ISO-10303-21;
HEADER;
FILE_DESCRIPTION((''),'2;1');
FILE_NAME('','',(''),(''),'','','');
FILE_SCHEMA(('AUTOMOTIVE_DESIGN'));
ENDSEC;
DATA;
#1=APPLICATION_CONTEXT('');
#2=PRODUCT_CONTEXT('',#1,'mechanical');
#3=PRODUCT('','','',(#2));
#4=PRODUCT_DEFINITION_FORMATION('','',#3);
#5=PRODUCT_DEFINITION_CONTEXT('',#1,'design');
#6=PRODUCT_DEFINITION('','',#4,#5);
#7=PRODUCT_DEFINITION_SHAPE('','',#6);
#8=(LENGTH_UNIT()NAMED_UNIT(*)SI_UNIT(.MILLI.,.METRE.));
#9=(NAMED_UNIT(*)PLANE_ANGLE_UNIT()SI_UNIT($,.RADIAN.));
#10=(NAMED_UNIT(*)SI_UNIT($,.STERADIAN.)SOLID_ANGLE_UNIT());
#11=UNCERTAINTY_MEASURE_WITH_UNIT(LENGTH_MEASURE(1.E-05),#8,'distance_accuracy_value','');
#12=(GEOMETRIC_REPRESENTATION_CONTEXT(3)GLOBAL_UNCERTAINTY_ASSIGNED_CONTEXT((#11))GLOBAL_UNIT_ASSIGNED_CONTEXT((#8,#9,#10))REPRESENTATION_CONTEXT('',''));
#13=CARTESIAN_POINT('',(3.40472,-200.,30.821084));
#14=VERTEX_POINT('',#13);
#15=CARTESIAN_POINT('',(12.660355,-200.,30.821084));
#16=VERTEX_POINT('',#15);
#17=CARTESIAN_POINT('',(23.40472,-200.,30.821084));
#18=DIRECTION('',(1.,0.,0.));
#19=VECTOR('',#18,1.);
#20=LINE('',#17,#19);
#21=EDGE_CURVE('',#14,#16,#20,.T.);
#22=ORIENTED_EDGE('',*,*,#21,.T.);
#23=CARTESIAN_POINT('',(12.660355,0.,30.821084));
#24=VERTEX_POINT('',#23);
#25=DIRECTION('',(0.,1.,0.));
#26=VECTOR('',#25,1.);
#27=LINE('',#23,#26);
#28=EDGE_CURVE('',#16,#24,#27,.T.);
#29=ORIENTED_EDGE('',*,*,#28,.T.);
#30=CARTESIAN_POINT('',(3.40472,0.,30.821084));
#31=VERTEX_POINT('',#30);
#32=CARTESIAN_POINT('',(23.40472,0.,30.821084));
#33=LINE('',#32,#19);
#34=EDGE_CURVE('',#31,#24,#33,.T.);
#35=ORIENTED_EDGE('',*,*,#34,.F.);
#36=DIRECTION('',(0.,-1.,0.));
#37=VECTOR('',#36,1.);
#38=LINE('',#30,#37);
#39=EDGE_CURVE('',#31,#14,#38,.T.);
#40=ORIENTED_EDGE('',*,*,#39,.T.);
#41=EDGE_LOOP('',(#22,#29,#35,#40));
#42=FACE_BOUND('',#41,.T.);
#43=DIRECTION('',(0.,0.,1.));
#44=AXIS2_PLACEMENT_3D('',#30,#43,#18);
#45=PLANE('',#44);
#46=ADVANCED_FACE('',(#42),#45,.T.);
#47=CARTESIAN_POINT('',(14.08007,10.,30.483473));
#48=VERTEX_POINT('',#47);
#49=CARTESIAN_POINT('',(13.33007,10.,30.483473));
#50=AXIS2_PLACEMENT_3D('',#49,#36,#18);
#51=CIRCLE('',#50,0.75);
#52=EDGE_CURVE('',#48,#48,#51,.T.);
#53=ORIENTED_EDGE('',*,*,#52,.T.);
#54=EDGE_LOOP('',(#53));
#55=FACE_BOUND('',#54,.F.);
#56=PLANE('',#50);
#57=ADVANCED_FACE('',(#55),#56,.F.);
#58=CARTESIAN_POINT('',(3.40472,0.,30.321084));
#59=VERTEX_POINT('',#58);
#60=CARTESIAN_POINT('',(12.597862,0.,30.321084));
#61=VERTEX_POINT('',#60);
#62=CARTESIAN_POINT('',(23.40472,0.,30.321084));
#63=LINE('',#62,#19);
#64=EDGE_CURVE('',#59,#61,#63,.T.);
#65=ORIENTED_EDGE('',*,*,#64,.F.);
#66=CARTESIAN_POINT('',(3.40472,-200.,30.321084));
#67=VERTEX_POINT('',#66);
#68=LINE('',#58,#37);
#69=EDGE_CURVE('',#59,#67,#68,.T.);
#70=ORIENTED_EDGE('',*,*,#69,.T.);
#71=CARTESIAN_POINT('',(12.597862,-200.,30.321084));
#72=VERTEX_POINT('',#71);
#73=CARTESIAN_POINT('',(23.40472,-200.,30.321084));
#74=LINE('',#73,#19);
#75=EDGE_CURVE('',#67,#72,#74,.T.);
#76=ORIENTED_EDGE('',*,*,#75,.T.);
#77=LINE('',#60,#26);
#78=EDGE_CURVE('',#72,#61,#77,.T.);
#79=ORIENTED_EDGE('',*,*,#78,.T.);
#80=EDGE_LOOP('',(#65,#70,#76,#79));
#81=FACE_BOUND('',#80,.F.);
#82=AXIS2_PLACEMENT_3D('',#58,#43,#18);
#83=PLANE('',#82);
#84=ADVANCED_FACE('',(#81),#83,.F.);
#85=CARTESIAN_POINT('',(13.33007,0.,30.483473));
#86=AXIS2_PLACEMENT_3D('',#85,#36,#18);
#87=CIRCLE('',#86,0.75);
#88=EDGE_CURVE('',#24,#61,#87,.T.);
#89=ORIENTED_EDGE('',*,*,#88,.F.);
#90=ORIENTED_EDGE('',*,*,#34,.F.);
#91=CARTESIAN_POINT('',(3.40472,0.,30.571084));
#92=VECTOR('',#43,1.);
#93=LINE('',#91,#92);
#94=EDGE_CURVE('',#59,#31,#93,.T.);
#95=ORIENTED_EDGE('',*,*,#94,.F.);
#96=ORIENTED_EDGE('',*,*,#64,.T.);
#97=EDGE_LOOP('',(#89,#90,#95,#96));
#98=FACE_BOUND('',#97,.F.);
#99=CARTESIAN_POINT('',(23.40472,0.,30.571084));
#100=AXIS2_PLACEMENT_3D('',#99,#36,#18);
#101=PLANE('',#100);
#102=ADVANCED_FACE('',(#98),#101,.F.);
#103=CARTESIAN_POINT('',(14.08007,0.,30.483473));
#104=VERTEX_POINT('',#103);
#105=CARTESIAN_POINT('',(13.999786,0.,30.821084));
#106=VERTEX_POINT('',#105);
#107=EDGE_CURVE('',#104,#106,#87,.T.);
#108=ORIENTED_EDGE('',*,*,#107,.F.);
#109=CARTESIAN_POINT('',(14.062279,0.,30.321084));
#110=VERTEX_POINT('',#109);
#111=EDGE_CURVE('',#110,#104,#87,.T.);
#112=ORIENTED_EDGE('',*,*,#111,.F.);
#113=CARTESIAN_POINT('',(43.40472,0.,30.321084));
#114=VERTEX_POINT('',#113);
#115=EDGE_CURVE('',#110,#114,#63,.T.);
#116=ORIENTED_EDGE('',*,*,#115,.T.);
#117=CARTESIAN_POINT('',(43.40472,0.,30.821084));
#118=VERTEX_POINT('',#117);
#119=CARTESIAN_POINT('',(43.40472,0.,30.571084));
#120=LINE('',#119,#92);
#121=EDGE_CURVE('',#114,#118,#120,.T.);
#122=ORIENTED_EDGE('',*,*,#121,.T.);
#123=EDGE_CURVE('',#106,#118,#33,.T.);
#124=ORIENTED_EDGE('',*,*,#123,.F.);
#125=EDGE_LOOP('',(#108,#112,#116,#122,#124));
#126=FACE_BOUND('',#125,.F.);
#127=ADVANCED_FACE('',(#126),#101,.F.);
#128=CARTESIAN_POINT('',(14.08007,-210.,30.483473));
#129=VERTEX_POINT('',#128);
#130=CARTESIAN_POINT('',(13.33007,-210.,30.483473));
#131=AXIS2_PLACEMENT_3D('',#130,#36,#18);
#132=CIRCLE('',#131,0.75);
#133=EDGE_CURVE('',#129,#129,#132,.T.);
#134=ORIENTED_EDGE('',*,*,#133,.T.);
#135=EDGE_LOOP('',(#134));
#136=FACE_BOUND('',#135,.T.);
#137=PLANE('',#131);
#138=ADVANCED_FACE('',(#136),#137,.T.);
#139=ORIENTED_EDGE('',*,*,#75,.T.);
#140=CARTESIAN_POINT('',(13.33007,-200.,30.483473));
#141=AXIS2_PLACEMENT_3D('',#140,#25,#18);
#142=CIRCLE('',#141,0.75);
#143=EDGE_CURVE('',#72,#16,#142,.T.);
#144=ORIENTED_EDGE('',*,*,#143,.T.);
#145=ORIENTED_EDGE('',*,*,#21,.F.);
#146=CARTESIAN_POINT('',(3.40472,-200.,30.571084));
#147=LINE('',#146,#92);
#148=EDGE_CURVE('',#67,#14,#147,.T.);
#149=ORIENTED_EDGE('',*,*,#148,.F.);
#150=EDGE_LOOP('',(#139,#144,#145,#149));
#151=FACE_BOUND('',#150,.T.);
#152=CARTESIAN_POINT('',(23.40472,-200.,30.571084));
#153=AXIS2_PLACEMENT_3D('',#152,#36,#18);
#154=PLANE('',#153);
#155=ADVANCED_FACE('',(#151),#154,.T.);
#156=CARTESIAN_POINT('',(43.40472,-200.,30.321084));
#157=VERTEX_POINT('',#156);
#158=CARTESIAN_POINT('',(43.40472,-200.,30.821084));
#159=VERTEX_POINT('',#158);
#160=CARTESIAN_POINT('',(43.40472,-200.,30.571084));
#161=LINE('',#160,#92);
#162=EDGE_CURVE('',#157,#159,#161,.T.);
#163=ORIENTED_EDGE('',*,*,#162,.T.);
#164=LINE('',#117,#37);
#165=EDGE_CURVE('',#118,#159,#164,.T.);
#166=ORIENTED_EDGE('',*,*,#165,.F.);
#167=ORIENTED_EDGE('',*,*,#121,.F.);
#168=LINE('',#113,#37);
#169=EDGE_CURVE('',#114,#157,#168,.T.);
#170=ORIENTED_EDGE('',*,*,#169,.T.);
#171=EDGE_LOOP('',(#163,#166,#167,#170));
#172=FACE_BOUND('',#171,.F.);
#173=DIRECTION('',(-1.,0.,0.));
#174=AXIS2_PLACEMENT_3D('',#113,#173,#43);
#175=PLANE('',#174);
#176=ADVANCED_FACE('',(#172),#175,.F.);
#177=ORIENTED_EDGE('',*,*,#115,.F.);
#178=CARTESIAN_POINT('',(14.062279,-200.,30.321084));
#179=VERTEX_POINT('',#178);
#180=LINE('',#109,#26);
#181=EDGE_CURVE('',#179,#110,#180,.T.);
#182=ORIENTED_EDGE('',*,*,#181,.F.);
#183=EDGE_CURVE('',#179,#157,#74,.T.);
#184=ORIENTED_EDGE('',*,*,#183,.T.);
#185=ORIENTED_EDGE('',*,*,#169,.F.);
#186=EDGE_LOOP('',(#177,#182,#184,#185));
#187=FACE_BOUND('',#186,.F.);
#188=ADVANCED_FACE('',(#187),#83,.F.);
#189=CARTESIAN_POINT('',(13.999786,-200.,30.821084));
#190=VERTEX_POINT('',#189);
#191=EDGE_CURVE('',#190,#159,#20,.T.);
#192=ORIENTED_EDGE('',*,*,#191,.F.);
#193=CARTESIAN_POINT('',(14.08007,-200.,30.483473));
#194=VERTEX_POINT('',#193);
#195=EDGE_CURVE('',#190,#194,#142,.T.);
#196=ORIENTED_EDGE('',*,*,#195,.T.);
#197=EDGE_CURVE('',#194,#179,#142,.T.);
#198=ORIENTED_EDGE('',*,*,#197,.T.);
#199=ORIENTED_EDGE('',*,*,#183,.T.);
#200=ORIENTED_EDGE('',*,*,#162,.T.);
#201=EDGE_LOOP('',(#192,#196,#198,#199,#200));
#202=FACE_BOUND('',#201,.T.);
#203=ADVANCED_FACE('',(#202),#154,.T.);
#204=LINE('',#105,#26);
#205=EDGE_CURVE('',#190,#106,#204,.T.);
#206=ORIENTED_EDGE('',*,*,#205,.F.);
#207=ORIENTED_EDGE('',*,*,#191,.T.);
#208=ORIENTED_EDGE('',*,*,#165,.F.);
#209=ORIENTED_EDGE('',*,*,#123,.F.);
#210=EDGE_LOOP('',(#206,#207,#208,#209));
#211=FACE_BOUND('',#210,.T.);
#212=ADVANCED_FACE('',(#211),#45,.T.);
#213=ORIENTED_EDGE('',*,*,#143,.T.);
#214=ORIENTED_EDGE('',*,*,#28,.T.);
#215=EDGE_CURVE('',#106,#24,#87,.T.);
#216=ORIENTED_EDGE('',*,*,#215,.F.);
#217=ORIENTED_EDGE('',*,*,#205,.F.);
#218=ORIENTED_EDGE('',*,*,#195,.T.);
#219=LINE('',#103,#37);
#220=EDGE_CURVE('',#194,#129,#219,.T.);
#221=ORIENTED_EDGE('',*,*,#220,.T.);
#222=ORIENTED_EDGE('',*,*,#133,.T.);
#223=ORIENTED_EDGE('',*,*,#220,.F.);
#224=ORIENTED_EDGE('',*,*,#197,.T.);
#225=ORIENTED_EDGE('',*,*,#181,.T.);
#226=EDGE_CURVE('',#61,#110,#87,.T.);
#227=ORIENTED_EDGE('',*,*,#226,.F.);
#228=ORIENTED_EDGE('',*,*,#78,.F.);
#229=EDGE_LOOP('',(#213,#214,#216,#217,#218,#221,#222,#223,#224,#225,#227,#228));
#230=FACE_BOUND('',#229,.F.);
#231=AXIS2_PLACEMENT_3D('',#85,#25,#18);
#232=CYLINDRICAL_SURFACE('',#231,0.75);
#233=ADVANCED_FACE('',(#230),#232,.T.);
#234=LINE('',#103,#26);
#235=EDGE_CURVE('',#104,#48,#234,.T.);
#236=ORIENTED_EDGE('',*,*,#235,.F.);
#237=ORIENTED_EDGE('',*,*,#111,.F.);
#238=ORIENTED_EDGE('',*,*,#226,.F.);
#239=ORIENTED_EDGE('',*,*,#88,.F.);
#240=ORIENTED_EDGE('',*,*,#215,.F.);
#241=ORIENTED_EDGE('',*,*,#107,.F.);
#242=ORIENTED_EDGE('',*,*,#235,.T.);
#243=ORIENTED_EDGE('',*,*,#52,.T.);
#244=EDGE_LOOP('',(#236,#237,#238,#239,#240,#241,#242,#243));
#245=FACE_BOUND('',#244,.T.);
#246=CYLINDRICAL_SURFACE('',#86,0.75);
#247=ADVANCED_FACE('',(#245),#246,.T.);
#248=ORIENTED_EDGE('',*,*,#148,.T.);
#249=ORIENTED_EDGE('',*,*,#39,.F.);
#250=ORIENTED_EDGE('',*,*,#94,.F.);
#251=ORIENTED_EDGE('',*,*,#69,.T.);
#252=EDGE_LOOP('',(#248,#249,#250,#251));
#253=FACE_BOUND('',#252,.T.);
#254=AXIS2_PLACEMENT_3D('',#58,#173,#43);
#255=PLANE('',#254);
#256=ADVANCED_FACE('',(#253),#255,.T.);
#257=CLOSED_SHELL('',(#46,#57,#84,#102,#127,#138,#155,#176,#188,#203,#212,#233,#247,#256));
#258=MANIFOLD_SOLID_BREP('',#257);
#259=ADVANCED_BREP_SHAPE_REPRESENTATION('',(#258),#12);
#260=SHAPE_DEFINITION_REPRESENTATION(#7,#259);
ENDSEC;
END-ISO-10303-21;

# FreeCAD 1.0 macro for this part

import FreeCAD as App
import Part
import Sketcher

V = App.Vector

doc = App.newDocument("Part")
body = doc.addObject("PartDesign::Body", "Body")

# Sketch on XZ plane
sketch1 = body.newObject("Sketcher::SketchObject", "Sketch")
sketch1.AttachmentSupport = (doc.getObject("XZ_Plane"), [""])
sketch1.MapMode = "FlatFace"
sketch1.addGeometry(Part.LineSegment(V(3.4, 30.8, 0), V(3.4, 30.3, 0)), False)
sketch1.addGeometry(Part.LineSegment(V(3.4, 30.3, 0), V(43.4, 30.3, 0)), False)
sketch1.addGeometry(Part.LineSegment(V(43.4, 30.3, 0), V(43.4, 30.8, 0)), False)
sketch1.addGeometry(Part.LineSegment(V(43.4, 30.8, 0), V(3.4, 30.8, 0)), False)
sketch1.addConstraint(Sketcher.Constraint("Coincident", 0, 2, 1, 1))
sketch1.addConstraint(Sketcher.Constraint("Coincident", 1, 2, 2, 1))
sketch1.addConstraint(Sketcher.Constraint("Coincident", 2, 2, 3, 1))
sketch1.addConstraint(Sketcher.Constraint("Coincident", 3, 2, 0, 1))
sketch1.addConstraint(Sketcher.Constraint("Vertical", 0))
sketch1.addConstraint(Sketcher.Constraint("Horizontal", 1))
sketch1.addConstraint(Sketcher.Constraint("Vertical", 2))
sketch1.addConstraint(Sketcher.Constraint("Horizontal", 3))
sketch1.addConstraint(Sketcher.Constraint("DistanceX", 1, 1, 1, 2, 40.0))
sketch1.addConstraint(Sketcher.Constraint("DistanceY", 0, 2, 0, 1, 0.5))
sketch1.addConstraint(Sketcher.Constraint("DistanceX", -1, 1, 0, 2, 3.40472))
sketch1.addConstraint(Sketcher.Constraint("DistanceY", -1, 1, 0, 2, 30.321084))
pad1 = body.newObject("PartDesign::Pad", "Pad")
pad1.Profile = sketch1
pad1.Length = 200

# Sketch on XZ plane
sketch2 = body.newObject("Sketcher::SketchObject", "Sketch001")
sketch2.AttachmentSupport = (doc.getObject("XZ_Plane"), [""])
sketch2.MapMode = "FlatFace"
sketch2.addGeometry(Part.Circle(V(13.3, 30.5, 0), V(0, 0, 1), 0.8), False)
sketch2.addConstraint(Sketcher.Constraint("Diameter", 0, 1.5))
sketch2.addConstraint(Sketcher.Constraint("DistanceX", -1, 1, 0, 3, 13.33007))
sketch2.addConstraint(Sketcher.Constraint("DistanceY", -1, 1, 0, 3, 30.483473))
pad2 = body.newObject("PartDesign::Pad", "Pad001")
pad2.Profile = sketch2
pad2.Type = "TwoLengths"
pad2.Length = 210
pad2.Length2 = 10

doc.recompute()
